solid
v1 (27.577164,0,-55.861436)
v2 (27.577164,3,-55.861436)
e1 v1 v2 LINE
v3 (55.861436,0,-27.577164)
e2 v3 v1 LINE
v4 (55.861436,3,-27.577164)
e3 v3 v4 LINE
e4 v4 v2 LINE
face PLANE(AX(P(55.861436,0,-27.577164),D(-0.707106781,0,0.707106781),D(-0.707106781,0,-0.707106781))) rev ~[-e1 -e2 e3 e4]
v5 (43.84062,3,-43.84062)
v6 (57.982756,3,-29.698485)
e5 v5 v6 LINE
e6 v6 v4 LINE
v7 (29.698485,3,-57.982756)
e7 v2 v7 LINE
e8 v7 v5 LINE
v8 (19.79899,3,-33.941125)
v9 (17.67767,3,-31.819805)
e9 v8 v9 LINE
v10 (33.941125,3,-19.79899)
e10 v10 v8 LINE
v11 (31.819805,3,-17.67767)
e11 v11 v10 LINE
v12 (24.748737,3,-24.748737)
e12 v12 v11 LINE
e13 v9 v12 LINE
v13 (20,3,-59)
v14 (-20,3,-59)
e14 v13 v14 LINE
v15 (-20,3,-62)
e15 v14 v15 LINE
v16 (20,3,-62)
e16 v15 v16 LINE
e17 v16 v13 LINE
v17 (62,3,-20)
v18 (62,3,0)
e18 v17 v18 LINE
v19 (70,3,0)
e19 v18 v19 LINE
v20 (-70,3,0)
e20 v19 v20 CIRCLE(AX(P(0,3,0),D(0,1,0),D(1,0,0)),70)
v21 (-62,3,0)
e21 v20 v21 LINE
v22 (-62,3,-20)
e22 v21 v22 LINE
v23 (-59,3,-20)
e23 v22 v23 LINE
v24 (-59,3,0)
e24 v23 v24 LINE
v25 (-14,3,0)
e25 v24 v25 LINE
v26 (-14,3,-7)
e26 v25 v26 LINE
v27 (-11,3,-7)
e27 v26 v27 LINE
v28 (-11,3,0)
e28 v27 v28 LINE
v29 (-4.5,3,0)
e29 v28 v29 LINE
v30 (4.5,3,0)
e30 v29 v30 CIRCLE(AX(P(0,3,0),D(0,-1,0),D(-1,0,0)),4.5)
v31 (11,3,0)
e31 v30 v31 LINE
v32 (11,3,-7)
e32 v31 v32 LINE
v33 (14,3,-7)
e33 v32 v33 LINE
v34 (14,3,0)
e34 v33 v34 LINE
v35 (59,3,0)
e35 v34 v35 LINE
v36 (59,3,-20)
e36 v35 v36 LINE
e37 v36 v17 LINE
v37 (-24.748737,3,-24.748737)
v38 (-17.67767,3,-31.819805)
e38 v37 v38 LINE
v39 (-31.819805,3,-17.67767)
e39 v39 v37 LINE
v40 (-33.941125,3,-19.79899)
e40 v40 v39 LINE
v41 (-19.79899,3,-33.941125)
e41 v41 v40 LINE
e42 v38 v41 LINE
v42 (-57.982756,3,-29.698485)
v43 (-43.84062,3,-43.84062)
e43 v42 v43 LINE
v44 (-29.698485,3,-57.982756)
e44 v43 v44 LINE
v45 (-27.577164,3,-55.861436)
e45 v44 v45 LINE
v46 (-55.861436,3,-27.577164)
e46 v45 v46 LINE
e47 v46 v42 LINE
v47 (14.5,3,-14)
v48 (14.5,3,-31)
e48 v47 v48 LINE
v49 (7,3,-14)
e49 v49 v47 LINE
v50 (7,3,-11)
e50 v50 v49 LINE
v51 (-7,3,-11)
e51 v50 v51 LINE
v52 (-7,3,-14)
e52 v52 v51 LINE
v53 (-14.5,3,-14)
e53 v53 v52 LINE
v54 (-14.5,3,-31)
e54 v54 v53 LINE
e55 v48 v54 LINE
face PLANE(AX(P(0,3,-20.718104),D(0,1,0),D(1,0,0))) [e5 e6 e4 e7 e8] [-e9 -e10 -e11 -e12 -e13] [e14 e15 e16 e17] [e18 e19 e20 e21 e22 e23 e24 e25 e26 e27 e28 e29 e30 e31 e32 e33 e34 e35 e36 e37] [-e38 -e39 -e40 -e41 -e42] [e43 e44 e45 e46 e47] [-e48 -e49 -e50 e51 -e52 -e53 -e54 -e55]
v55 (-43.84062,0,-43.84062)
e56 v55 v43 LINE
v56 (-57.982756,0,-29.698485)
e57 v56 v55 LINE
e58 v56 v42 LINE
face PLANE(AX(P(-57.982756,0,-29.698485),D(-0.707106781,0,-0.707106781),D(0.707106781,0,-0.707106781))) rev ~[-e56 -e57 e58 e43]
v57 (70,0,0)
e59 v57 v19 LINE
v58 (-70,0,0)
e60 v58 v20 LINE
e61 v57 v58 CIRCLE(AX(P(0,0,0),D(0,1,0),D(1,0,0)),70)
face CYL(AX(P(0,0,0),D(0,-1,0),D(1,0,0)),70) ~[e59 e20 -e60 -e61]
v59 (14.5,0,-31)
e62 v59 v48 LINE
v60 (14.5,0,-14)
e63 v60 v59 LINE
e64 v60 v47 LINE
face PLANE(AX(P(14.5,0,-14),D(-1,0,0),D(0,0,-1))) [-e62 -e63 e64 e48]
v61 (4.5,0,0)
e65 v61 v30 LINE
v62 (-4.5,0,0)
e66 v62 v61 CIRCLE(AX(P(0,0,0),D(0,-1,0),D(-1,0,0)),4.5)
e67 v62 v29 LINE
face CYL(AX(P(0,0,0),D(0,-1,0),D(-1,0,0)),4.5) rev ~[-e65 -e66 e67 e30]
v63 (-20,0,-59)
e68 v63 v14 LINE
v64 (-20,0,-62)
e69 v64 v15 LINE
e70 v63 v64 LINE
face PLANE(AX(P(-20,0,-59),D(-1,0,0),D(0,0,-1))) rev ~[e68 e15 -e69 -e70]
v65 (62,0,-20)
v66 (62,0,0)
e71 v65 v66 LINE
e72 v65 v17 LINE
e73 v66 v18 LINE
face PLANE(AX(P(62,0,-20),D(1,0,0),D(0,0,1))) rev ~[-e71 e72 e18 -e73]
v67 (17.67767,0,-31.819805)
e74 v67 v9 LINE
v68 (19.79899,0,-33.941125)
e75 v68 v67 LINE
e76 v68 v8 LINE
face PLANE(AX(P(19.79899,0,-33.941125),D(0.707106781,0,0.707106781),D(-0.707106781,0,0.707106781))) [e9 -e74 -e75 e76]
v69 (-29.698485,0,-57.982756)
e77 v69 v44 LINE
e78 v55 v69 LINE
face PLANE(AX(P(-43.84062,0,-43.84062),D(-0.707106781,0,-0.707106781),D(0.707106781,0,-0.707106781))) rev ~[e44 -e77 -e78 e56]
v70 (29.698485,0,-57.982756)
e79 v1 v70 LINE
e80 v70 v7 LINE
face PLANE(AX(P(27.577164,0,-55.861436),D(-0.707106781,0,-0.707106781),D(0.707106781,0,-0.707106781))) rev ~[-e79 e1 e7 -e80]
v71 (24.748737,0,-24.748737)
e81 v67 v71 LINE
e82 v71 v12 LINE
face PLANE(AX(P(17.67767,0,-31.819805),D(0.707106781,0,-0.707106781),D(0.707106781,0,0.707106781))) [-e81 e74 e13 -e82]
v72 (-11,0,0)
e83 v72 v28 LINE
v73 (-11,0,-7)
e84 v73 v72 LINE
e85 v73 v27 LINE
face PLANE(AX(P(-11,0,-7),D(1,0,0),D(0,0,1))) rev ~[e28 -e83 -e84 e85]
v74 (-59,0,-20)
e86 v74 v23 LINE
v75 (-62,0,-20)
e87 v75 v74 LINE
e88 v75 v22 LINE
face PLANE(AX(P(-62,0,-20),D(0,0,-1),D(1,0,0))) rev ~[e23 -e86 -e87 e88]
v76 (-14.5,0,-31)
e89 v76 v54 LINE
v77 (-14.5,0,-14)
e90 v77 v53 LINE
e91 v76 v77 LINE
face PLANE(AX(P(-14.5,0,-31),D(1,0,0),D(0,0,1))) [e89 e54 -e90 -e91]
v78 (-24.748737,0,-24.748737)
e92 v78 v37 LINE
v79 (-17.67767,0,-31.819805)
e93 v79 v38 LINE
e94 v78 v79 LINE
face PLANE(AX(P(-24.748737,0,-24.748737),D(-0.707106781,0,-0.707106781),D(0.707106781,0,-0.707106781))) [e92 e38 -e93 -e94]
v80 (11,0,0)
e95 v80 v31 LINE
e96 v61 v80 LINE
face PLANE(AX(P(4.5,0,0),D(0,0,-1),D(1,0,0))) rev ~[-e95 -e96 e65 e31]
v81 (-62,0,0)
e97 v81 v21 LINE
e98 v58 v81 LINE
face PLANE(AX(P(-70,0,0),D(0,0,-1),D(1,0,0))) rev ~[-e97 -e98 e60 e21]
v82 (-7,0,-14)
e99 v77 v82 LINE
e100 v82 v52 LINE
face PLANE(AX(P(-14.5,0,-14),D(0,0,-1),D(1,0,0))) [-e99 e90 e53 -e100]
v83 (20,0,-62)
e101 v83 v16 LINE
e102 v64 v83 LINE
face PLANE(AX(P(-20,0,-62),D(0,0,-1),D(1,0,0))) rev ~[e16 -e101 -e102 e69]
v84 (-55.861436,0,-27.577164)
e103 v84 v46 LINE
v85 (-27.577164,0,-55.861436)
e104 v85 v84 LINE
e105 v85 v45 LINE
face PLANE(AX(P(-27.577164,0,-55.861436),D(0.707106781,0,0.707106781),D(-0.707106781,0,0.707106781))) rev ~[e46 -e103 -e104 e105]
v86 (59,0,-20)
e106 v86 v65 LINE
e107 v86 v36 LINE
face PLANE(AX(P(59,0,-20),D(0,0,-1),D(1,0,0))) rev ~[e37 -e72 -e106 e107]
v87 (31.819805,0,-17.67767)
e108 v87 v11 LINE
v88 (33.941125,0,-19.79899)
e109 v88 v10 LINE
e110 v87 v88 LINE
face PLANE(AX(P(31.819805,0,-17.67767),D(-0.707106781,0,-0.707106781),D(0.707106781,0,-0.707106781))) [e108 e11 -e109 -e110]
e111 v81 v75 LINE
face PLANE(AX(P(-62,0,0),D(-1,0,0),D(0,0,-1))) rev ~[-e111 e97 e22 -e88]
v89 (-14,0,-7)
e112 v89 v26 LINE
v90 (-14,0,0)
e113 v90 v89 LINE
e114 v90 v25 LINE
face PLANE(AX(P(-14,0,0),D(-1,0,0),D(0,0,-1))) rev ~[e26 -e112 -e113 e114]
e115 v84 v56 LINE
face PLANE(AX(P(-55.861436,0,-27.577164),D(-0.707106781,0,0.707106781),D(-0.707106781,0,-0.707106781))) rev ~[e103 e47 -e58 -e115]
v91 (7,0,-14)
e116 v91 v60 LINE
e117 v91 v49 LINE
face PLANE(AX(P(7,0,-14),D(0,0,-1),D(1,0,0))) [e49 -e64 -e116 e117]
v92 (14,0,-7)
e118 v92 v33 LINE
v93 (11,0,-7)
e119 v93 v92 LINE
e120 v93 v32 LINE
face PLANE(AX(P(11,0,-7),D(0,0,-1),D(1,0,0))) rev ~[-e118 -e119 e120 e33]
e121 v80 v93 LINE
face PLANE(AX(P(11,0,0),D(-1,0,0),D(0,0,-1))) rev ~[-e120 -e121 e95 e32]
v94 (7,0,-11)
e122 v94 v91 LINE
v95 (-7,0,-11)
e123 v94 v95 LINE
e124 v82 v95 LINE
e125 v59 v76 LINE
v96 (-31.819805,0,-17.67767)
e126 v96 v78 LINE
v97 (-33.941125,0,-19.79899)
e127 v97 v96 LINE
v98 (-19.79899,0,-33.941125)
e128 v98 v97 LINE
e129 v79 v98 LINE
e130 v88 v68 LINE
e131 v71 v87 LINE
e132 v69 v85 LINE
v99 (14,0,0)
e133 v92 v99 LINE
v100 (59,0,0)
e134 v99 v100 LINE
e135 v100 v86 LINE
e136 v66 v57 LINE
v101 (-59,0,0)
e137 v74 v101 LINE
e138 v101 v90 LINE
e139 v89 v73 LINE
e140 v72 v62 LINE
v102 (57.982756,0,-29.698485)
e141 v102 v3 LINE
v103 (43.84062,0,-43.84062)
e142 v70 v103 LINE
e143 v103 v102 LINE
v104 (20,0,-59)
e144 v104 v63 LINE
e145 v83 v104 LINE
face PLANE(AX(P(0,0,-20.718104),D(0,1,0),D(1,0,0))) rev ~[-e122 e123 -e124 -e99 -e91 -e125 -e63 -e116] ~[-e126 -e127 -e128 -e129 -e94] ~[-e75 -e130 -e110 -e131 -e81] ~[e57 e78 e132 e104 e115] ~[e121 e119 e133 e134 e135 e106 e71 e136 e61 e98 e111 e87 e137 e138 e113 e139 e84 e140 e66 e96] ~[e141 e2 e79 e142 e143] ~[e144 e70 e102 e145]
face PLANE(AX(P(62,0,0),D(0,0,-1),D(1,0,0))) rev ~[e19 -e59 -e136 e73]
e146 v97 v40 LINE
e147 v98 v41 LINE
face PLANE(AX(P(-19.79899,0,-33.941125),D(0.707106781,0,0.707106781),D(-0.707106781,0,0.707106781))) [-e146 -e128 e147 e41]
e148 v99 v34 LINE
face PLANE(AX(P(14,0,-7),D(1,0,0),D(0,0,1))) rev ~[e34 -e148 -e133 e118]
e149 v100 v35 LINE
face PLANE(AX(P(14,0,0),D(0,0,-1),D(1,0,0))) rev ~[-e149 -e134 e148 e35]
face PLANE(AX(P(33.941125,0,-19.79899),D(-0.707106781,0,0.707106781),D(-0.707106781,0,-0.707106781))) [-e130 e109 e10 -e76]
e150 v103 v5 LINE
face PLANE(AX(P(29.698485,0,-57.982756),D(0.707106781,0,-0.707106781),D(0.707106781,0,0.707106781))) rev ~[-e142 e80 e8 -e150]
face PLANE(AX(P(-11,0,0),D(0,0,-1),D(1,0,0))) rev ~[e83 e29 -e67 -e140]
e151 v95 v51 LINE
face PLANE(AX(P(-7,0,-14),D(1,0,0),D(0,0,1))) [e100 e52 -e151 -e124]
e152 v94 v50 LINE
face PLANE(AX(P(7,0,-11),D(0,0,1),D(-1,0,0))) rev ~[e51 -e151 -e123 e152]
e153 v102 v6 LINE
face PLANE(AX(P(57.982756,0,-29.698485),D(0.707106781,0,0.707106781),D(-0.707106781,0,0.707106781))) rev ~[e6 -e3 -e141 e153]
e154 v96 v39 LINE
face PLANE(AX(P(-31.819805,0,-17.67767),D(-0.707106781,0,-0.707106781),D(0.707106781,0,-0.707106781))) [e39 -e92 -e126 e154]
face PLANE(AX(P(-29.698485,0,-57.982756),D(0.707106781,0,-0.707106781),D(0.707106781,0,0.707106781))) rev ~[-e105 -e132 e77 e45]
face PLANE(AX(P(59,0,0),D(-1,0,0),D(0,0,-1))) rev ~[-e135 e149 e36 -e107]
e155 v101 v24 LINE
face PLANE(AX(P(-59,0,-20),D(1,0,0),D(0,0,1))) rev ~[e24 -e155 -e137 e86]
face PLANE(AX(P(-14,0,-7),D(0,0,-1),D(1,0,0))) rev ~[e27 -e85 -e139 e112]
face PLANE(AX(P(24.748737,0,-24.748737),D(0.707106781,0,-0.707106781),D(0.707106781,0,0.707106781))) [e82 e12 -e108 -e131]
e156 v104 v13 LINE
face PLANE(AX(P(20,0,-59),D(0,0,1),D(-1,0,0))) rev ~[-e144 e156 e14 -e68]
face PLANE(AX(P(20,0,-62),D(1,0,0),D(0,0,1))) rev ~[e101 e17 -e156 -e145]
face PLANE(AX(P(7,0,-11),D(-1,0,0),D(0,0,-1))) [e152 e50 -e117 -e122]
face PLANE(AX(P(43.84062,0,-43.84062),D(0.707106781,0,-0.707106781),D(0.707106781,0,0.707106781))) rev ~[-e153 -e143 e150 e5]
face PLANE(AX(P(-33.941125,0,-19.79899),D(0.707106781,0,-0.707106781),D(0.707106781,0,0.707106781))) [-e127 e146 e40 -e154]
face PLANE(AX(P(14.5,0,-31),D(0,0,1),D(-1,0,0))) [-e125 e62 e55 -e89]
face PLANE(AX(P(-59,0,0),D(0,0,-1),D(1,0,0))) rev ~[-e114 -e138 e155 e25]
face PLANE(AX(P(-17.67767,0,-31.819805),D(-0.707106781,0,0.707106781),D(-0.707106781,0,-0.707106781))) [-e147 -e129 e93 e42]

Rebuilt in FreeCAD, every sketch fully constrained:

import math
import FreeCAD as App
import Part
import Sketcher


def add_polygon(sketch, points):
    """Adds a closed chain of lines whose ends are joined by coincident constraints."""
    first, n = sketch.GeometryCount, len(points)
    for a, b in zip(points, points[1:] + points[:1]):
        sketch.addGeometry(Part.LineSegment(App.Vector(*a, 0), App.Vector(*b, 0)), False)
    for i in range(n):
        sketch.addConstraint(Sketcher.Constraint("Coincident", first + i, 2, first + (i + 1) % n, 1))

doc = App.newDocument("Part")
body = doc.addObject("PartDesign::Body", "Body")

# Sketch on XZ plane
sketch1 = doc.addObject("Sketcher::SketchObject", "Sketch")
body.addObject(sketch1)
sketch1.AttachmentSupport = (doc.XZ_Plane, [""])
sketch1.MapMode = "FlatFace"
sketch1.addGeometry(Part.LineSegment(App.Vector(11, 0, 0), App.Vector(11, -7, 0)), False)  # 0
sketch1.addGeometry(Part.LineSegment(App.Vector(11, -7, 0), App.Vector(14, -7, 0)), False)  # 1
sketch1.addGeometry(Part.LineSegment(App.Vector(14, -7, 0), App.Vector(14, 0, 0)), False)  # 2
sketch1.addGeometry(Part.LineSegment(App.Vector(14, 0, 0), App.Vector(59, 0, 0)), False)  # 3
sketch1.addGeometry(Part.LineSegment(App.Vector(59, 0, 0), App.Vector(59, -20, 0)), False)  # 4
sketch1.addGeometry(Part.LineSegment(App.Vector(59, -20, 0), App.Vector(62, -20, 0)), False)  # 5
sketch1.addGeometry(Part.LineSegment(App.Vector(62, -20, 0), App.Vector(62, 0, 0)), False)  # 6
sketch1.addGeometry(Part.LineSegment(App.Vector(62, 0, 0), App.Vector(70, 0, 0)), False)  # 7
sketch1.addGeometry(Part.ArcOfCircle(Part.Circle(App.Vector(0, 0, 0), App.Vector(0, 0, 1), 70), math.radians(180), math.radians(360)), False)  # 8
sketch1.addGeometry(Part.LineSegment(App.Vector(-70, 0, 0), App.Vector(-62, 0, 0)), False)  # 9
sketch1.addGeometry(Part.LineSegment(App.Vector(-62, 0, 0), App.Vector(-62, -20, 0)), False)  # 10
sketch1.addGeometry(Part.LineSegment(App.Vector(-62, -20, 0), App.Vector(-59, -20, 0)), False)  # 11
sketch1.addGeometry(Part.LineSegment(App.Vector(-59, -20, 0), App.Vector(-59, 0, 0)), False)  # 12
sketch1.addGeometry(Part.LineSegment(App.Vector(-59, 0, 0), App.Vector(-14, 0, 0)), False)  # 13
sketch1.addGeometry(Part.LineSegment(App.Vector(-14, 0, 0), App.Vector(-14, -7, 0)), False)  # 14
sketch1.addGeometry(Part.LineSegment(App.Vector(-14, -7, 0), App.Vector(-11, -7, 0)), False)  # 15
sketch1.addGeometry(Part.LineSegment(App.Vector(-11, -7, 0), App.Vector(-11, 0, 0)), False)  # 16
sketch1.addGeometry(Part.LineSegment(App.Vector(-11, 0, 0), App.Vector(-4.5, 0, 0)), False)  # 17
sketch1.addGeometry(Part.ArcOfCircle(Part.Circle(App.Vector(0, 0, 0), App.Vector(0, 0, 1), 4.5), math.radians(180), math.radians(360)), False)  # 18
sketch1.addGeometry(Part.LineSegment(App.Vector(4.5, 0, 0), App.Vector(11, 0, 0)), False)  # 19
add_polygon(sketch1, [(-17.67767, -31.819805), (-24.748737, -24.748737), (-31.819805, -17.67767), (-33.941125, -19.79899), (-19.79899, -33.941125)])  # lines 20-24
add_polygon(sketch1, [(7, -11), (-7, -11), (-7, -14), (-14.5, -14), (-14.5, -31), (14.5, -31), (14.5, -14), (7, -14)])  # lines 25-32
add_polygon(sketch1, [(31.819805, -17.67767), (24.748737, -24.748737), (17.67767, -31.819805), (19.79899, -33.941125), (33.941125, -19.79899)])  # lines 33-37
add_polygon(sketch1, [(-29.698485, -57.982756), (-27.577164, -55.861436), (-55.861436, -27.577164), (-57.982756, -29.698485), (-43.84062, -43.84062)])  # lines 38-42
add_polygon(sketch1, [(57.982756, -29.698485), (55.861436, -27.577164), (27.577164, -55.861436), (29.698485, -57.982756), (43.84062, -43.84062)])  # lines 43-47
add_polygon(sketch1, [(-20, -62), (20, -62), (20, -59), (-20, -59)])  # lines 48-51
sketch1.addConstraint([
    Sketcher.Constraint("Coincident", 0, 2, 1, 1),
    Sketcher.Constraint("Coincident", 1, 2, 2, 1),
    Sketcher.Constraint("Coincident", 2, 2, 3, 1),
    Sketcher.Constraint("Coincident", 3, 2, 4, 1),
    Sketcher.Constraint("Coincident", 4, 2, 5, 1),
    Sketcher.Constraint("Coincident", 5, 2, 6, 1),
    Sketcher.Constraint("Coincident", 6, 2, 7, 1),
    Sketcher.Constraint("Coincident", 7, 2, 8, 2),
    Sketcher.Constraint("Coincident", 8, 1, 9, 1),
    Sketcher.Constraint("Coincident", 9, 2, 10, 1),
    Sketcher.Constraint("Coincident", 10, 2, 11, 1),
    Sketcher.Constraint("Coincident", 11, 2, 12, 1),
    Sketcher.Constraint("Coincident", 12, 2, 13, 1),
    Sketcher.Constraint("Coincident", 13, 2, 14, 1),
    Sketcher.Constraint("Coincident", 14, 2, 15, 1),
    Sketcher.Constraint("Coincident", 15, 2, 16, 1),
    Sketcher.Constraint("Coincident", 16, 2, 17, 1),
    Sketcher.Constraint("Coincident", 17, 2, 18, 1),
    Sketcher.Constraint("Coincident", 18, 2, 19, 1),
    Sketcher.Constraint("Coincident", 19, 2, 0, 1),
    Sketcher.Constraint("Vertical", 0),
    Sketcher.Constraint("Horizontal", 1),
    Sketcher.Constraint("Vertical", 2),
    Sketcher.Constraint("Horizontal", 3),
    Sketcher.Constraint("Vertical", 4),
    Sketcher.Constraint("Horizontal", 5),
    Sketcher.Constraint("Vertical", 6),
    Sketcher.Constraint("Horizontal", 7),
    Sketcher.Constraint("Horizontal", 9),
    Sketcher.Constraint("Vertical", 10),
    Sketcher.Constraint("Horizontal", 11),
    Sketcher.Constraint("Vertical", 12),
    Sketcher.Constraint("Horizontal", 13),
    Sketcher.Constraint("Vertical", 14),
    Sketcher.Constraint("Horizontal", 15),
    Sketcher.Constraint("Vertical", 16),
    Sketcher.Constraint("Horizontal", 17),
    Sketcher.Constraint("Horizontal", 19),
    Sketcher.Constraint("Horizontal", 25),
    Sketcher.Constraint("Vertical", 26),
    Sketcher.Constraint("Horizontal", 27),
    Sketcher.Constraint("Vertical", 28),
    Sketcher.Constraint("Horizontal", 29),
    Sketcher.Constraint("Vertical", 30),
    Sketcher.Constraint("Horizontal", 31),
    Sketcher.Constraint("Vertical", 32),
    Sketcher.Constraint("Horizontal", 48),
    Sketcher.Constraint("Vertical", 49),
    Sketcher.Constraint("Horizontal", 50),
    Sketcher.Constraint("Vertical", 51),
    Sketcher.Constraint("Coincident", 8, 3, -1, 1),
    Sketcher.Constraint("Coincident", 18, 3, -1, 1),
    Sketcher.Constraint("Symmetric", 6, 2, 9, 2, -1, 1),
    Sketcher.Constraint("Symmetric", 3, 2, 12, 2, -1, 1),
    Sketcher.Constraint("Symmetric", 16, 2, 19, 2, -1, 1),
    Sketcher.Constraint("Symmetric", 2, 2, 13, 2, -2),
    Sketcher.Constraint("Symmetric", 27, 2, 30, 2, -2),
    Sketcher.Constraint("Symmetric", 20, 2, 33, 2, -2),
    Sketcher.Constraint("Symmetric", 24, 2, 34, 2, -2),
    Sketcher.Constraint("Symmetric", 23, 2, 35, 2, -2),
    Sketcher.Constraint("Symmetric", 22, 2, 36, 2, -2),
    Sketcher.Constraint("Symmetric", 21, 2, 37, 2, -2),
    Sketcher.Constraint("Symmetric", 39, 2, 43, 2, -2),
    Sketcher.Constraint("Symmetric", 38, 2, 44, 2, -2),
    Sketcher.Constraint("Symmetric", 42, 2, 45, 2, -2),
    Sketcher.Constraint("Symmetric", 41, 2, 46, 2, -2),
    Sketcher.Constraint("Symmetric", 40, 2, 47, 2, -2),
    Sketcher.Constraint("PointOnObject", 6, 2, -1),
    Sketcher.Constraint("PointOnObject", 16, 2, -1),
    Sketcher.Constraint("Parallel", 20, 21),
    Sketcher.Constraint("Perpendicular", 21, 22),
    Sketcher.Constraint("Perpendicular", 22, 23),
    Sketcher.Constraint("Perpendicular", 23, 24),
    Sketcher.Constraint("Parallel", 24, 33),
    Sketcher.Constraint("Perpendicular", 37, 38),
    Sketcher.Constraint("Perpendicular", 38, 39),
    Sketcher.Constraint("Perpendicular", 39, 40),
    Sketcher.Constraint("Perpendicular", 40, 41),
    Sketcher.Constraint("Parallel", 41, 42),
    Sketcher.Constraint("Horizontal", 5, 2, 10, 2),
    Sketcher.Constraint("Horizontal", 1, 2, 14, 2),
    Sketcher.Constraint("Equal", 1, 5),
    Sketcher.Constraint("Equal", 27, 31),
    Sketcher.Constraint("Equal", 15, 26),
    Sketcher.Constraint("Equal", 32, 49),
    Sketcher.Constraint("Equal", 20, 21),
    Sketcher.Constraint("Equal", 37, 38),
    Sketcher.Constraint("Equal", 36, 41),
    Sketcher.Constraint("Equal", 41, 42),
    Sketcher.Constraint("Radius", 8, 70.0),
    Sketcher.Constraint("Radius", 18, 4.5),
    Sketcher.Constraint("DistanceX", 1, 1, 1, 2, 3.0),
    Sketcher.Constraint("DistanceX", 3, 1, 3, 2, 45.0),
    Sketcher.Constraint("DistanceX", 7, 1, 7, 2, 8.0),
    Sketcher.Constraint("DistanceX", 25, 2, 25, 1, 14.0),
    Sketcher.Constraint("DistanceX", 29, 1, 29, 2, 29.0),
    Sketcher.Constraint("DistanceX", 48, 1, 48, 2, 40.0),
    Sketcher.Constraint("DistanceY", 0, 2, 0, 1, 7.0),
    Sketcher.Constraint("DistanceY", 4, 2, 4, 1, 20.0),
    Sketcher.Constraint("DistanceY", 28, 2, 28, 1, 17.0),
    Sketcher.Constraint("Distance", 20, 10.0),
    Sketcher.Constraint("Distance", 22, 3.0),
    Sketcher.Constraint("DistanceY", 25, 2, -1, 1, 11.0),
    Sketcher.Constraint("DistanceX", -1, 1, 48, 2, 20.0),
    Sketcher.Constraint("DistanceY", 48, 2, -1, 1, 62.0),
    Sketcher.Constraint("DistanceY", 38, 2, 20, 2, 31.112698),
    Sketcher.Constraint("DistanceY", 21, 2, -1, 1, 17.67767),
    Sketcher.Constraint("DistanceX", 23, 2, -1, 1, 19.79899),
    Sketcher.Constraint("DistanceX", 41, 2, -1, 1, 43.84062),
])
pad1 = doc.addObject("PartDesign::Pad", "Pad")
body.addObject(pad1)
pad1.Profile = sketch1
pad1.Length = 3
pad1.Reversed = True

doc.recompute()
